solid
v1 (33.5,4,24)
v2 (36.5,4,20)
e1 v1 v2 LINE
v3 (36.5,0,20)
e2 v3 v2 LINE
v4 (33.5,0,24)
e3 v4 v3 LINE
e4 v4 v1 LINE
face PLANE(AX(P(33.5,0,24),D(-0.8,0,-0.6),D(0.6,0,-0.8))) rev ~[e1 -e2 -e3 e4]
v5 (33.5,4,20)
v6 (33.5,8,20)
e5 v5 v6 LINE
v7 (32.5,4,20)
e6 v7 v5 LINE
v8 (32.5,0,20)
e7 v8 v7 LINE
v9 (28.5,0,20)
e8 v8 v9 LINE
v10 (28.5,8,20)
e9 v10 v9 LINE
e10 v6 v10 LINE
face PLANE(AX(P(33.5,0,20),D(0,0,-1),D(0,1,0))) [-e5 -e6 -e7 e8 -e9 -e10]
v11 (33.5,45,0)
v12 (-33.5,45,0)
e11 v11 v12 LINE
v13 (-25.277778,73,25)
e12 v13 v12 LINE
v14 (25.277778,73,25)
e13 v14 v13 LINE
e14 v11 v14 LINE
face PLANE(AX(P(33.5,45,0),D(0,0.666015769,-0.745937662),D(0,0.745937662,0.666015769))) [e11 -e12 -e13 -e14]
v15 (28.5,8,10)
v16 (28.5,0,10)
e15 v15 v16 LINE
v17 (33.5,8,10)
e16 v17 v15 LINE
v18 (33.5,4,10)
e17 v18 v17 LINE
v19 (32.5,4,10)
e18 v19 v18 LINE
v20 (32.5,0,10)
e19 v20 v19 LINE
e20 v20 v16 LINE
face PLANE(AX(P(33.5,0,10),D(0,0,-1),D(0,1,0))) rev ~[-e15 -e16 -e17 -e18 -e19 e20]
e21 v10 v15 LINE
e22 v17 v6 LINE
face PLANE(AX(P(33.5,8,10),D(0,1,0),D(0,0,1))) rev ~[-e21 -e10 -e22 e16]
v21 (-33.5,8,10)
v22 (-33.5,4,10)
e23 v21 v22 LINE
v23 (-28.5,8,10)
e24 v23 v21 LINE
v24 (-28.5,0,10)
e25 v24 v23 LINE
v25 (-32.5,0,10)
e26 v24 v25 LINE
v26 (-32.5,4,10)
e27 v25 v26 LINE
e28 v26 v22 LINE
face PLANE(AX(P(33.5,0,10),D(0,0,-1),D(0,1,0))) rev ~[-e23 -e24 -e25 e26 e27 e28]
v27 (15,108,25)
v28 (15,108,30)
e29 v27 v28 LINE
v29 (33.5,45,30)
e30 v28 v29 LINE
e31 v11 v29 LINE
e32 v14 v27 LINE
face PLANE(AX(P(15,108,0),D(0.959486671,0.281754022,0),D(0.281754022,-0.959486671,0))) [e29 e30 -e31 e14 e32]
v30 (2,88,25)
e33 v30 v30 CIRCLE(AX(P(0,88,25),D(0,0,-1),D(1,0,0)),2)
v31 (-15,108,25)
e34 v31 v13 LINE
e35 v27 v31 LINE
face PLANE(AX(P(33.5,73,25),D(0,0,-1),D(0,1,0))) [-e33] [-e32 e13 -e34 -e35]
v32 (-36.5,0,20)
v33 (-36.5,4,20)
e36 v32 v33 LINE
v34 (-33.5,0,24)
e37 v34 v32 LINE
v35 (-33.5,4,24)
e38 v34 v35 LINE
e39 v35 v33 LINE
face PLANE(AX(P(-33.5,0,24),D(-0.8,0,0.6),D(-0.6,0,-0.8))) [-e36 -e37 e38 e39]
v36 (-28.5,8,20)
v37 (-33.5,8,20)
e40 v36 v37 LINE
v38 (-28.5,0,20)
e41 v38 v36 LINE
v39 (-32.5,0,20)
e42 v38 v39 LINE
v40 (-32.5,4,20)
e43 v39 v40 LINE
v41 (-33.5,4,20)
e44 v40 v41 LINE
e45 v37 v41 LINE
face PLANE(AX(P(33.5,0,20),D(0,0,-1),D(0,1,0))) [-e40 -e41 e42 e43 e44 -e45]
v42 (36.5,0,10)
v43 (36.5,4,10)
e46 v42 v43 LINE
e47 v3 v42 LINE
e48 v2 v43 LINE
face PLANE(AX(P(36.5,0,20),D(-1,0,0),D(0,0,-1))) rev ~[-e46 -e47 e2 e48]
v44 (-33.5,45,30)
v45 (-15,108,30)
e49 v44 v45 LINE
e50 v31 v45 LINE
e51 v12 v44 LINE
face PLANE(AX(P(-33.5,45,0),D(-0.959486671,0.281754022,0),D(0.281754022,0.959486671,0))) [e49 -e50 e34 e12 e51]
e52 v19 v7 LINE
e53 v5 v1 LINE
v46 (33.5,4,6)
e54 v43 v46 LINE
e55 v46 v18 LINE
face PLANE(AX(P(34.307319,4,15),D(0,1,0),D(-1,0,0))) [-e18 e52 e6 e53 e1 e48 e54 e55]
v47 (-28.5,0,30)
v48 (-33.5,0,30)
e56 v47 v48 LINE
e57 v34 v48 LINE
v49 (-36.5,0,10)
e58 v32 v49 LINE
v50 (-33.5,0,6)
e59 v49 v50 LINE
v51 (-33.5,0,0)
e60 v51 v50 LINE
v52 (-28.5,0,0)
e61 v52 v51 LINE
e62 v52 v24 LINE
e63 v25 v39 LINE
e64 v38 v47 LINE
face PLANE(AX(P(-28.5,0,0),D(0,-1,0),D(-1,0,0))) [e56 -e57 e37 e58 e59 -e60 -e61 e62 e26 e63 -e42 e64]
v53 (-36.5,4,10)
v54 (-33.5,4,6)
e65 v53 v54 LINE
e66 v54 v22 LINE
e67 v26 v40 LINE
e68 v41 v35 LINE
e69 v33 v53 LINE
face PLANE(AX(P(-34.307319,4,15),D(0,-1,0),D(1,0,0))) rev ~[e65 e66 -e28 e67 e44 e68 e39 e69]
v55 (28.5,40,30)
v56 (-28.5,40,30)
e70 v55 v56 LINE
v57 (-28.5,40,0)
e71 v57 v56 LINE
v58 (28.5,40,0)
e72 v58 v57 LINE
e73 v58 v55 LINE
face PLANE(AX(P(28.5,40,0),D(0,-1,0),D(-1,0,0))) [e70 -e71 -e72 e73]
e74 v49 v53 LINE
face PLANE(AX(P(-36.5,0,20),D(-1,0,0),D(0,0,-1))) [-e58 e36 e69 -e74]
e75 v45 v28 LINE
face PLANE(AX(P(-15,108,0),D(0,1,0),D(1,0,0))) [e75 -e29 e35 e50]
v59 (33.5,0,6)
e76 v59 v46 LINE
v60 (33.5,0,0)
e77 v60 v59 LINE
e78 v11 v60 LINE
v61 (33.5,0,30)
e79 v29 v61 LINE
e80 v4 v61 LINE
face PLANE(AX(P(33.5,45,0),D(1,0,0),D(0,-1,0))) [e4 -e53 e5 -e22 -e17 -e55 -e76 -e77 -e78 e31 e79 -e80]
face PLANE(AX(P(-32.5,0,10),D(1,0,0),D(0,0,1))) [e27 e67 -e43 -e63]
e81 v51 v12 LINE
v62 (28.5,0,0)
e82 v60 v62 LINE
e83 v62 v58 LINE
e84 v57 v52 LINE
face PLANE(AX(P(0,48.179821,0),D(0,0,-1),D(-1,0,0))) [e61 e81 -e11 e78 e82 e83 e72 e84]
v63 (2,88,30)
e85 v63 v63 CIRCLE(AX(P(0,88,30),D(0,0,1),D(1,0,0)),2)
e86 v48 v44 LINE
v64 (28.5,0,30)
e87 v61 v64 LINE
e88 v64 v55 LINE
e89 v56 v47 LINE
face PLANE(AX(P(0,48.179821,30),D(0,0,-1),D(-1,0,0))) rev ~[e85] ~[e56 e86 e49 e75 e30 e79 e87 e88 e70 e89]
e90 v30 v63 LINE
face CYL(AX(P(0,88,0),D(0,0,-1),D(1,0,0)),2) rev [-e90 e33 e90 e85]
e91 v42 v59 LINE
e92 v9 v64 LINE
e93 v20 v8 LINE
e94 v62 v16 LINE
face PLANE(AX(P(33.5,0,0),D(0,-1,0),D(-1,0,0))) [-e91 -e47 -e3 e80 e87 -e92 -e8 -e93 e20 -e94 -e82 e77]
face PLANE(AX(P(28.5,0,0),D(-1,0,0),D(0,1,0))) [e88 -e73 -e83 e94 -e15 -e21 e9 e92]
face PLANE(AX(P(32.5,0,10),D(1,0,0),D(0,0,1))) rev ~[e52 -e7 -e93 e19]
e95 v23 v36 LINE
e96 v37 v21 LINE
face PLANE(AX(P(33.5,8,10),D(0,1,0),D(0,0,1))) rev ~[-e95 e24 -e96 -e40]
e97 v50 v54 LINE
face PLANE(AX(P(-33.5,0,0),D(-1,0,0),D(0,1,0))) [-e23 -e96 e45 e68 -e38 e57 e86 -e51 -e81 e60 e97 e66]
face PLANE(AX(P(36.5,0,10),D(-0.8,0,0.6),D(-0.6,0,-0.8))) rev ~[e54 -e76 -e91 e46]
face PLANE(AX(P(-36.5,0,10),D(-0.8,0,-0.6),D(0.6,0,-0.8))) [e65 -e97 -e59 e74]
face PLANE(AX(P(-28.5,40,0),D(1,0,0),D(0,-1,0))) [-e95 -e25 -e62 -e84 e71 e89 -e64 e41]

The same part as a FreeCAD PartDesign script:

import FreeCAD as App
import Part
import Sketcher
from FreeCAD import Vector

doc = App.newDocument("Part")
body = doc.addObject("PartDesign::Body", "Body")

sketch1 = doc.addObject("Sketcher::SketchObject", "Sketch")
body.addObject(sketch1)
sketch1.AttachmentSupport = (doc.XY_Plane, [""])
sketch1.MapMode = "FlatFace"
sketch1.addGeometry([
    Part.LineSegment(Vector(-33.5, 45, 0), Vector(-33.5, 0, 0)),
    Part.LineSegment(Vector(-33.5, 0, 0), Vector(-28.5, 0, 0)),
    Part.LineSegment(Vector(-28.5, 0, 0), Vector(-28.5, 40, 0)),
    Part.LineSegment(Vector(-28.5, 40, 0), Vector(28.5, 40, 0)),
    Part.LineSegment(Vector(28.5, 40, 0), Vector(28.5, 0, 0)),
    Part.LineSegment(Vector(28.5, 0, 0), Vector(33.5, 0, 0)),
    Part.LineSegment(Vector(33.5, 0, 0), Vector(33.5, 45, 0)),
    Part.LineSegment(Vector(33.5, 45, 0), Vector(15, 108, 0)),
    Part.LineSegment(Vector(15, 108, 0), Vector(-15, 108, 0)),
    Part.LineSegment(Vector(-15, 108, 0), Vector(-33.5, 45, 0)),
    Part.Circle(Vector(0, 88, 0), Vector(0, 0, 1), 2),
], False)
sketch1.addConstraint([
    Sketcher.Constraint("Coincident", 0, 2, 1, 1),
    Sketcher.Constraint("Coincident", 1, 2, 2, 1),
    Sketcher.Constraint("Coincident", 2, 2, 3, 1),
    Sketcher.Constraint("Coincident", 3, 2, 4, 1),
    Sketcher.Constraint("Coincident", 4, 2, 5, 1),
    Sketcher.Constraint("Coincident", 5, 2, 6, 1),
    Sketcher.Constraint("Coincident", 6, 2, 7, 1),
    Sketcher.Constraint("Coincident", 7, 2, 8, 1),
    Sketcher.Constraint("Coincident", 8, 2, 9, 1),
    Sketcher.Constraint("Coincident", 9, 2, 0, 1),
    Sketcher.Constraint("Vertical", 0),
    Sketcher.Constraint("Horizontal", 1),
    Sketcher.Constraint("Vertical", 2),
    Sketcher.Constraint("Horizontal", 3),
    Sketcher.Constraint("Vertical", 4),
    Sketcher.Constraint("Horizontal", 5),
    Sketcher.Constraint("Vertical", 6),
    Sketcher.Constraint("Horizontal", 8),
    Sketcher.Constraint("Symmetric", 1, 2, 4, 2, -1, 1),
    Sketcher.Constraint("Symmetric", 0, 2, 5, 2, -2),
    Sketcher.Constraint("PointOnObject", 10, 3, -2),
    Sketcher.Constraint("Horizontal", 6, 2, 9, 2),
    Sketcher.Constraint("Equal", 7, 9),
    Sketcher.Constraint("Diameter", 10, 4.0),
    Sketcher.Constraint("DistanceX", 1, 1, 1, 2, 5.0),
    Sketcher.Constraint("DistanceX", 3, 1, 3, 2, 57.0),
    Sketcher.Constraint("DistanceX", 8, 2, 8, 1, 30.0),
    Sketcher.Constraint("DistanceY", 0, 2, 0, 1, 45.0),
    Sketcher.Constraint("DistanceY", 2, 1, 2, 2, 40.0),
    Sketcher.Constraint("DistanceY", -1, 1, 10, 3, 88.0),
    Sketcher.Constraint("DistanceY", -1, 1, 7, 2, 108.0),
])
pad1 = doc.addObject("PartDesign::Pad", "Pad")
body.addObject(pad1)
pad1.Profile = sketch1
pad1.Length = 30

sketch2 = doc.addObject("Sketcher::SketchObject", "Sketch001")
body.addObject(sketch2)
sketch2.AttachmentSupport = (doc.YZ_Plane, [""])
sketch2.MapMode = "FlatFace"
sketch2.AttachmentOffset = App.Placement(Vector(0, 0, 33.5), App.Rotation())
sketch2.addGeometry([
    Part.LineSegment(Vector(73, 25, 0), Vector(45, 0, 0)),
    Part.LineSegment(Vector(45, 0, 0), Vector(108, 0, 0)),
    Part.LineSegment(Vector(108, 0, 0), Vector(108, 25, 0)),
    Part.LineSegment(Vector(108, 25, 0), Vector(73, 25, 0)),
    Part.LineSegment(Vector(0, 20, 0), Vector(0, 10, 0)),
    Part.LineSegment(Vector(0, 10, 0), Vector(8, 10, 0)),
    Part.LineSegment(Vector(8, 10, 0), Vector(8, 20, 0)),
    Part.LineSegment(Vector(8, 20, 0), Vector(0, 20, 0)),
], False)
sketch2.addConstraint([
    Sketcher.Constraint("Coincident", 0, 2, 1, 1),
    Sketcher.Constraint("Coincident", 1, 2, 2, 1),
    Sketcher.Constraint("Coincident", 2, 2, 3, 1),
    Sketcher.Constraint("Coincident", 3, 2, 0, 1),
    Sketcher.Constraint("Coincident", 4, 2, 5, 1),
    Sketcher.Constraint("Coincident", 5, 2, 6, 1),
    Sketcher.Constraint("Coincident", 6, 2, 7, 1),
    Sketcher.Constraint("Coincident", 7, 2, 4, 1),
    Sketcher.Constraint("Horizontal", 1),
    Sketcher.Constraint("Vertical", 2),
    Sketcher.Constraint("Horizontal", 3),
    Sketcher.Constraint("Vertical", 4),
    Sketcher.Constraint("Horizontal", 5),
    Sketcher.Constraint("Vertical", 6),
    Sketcher.Constraint("Horizontal", 7),
    Sketcher.Constraint("PointOnObject", 0, 2, -1),
    Sketcher.Constraint("PointOnObject", 4, 2, -2),
    Sketcher.Constraint("DistanceX", 1, 1, 1, 2, 63.0),
    Sketcher.Constraint("DistanceX", 3, 2, 3, 1, 35.0),
    Sketcher.Constraint("DistanceX", 5, 1, 5, 2, 8.0),
    Sketcher.Constraint("DistanceY", 2, 1, 2, 2, 25.0),
    Sketcher.Constraint("DistanceY", 4, 2, 4, 1, 10.0),
    Sketcher.Constraint("DistanceX", -1, 1, 0, 2, 45.0),
    Sketcher.Constraint("DistanceY", -1, 1, 4, 2, 10.0),
])
pocket1 = doc.addObject("PartDesign::Pocket", "Pocket")
body.addObject(pocket1)
pocket1.Profile = sketch2
pocket1.Type = "ThroughAll"

sketch3 = doc.addObject("Sketcher::SketchObject", "Sketch002")
body.addObject(sketch3)
sketch3.AttachmentSupport = (doc.XZ_Plane, [""])
sketch3.MapMode = "FlatFace"
sketch3.addGeometry([
    Part.LineSegment(Vector(33.5, 24, 0), Vector(32.5, 20, 0)),
    Part.LineSegment(Vector(32.5, 20, 0), Vector(32.5, 10, 0)),
    Part.LineSegment(Vector(32.5, 10, 0), Vector(33.5, 6, 0)),
    Part.LineSegment(Vector(33.5, 6, 0), Vector(36.5, 10, 0)),
    Part.LineSegment(Vector(36.5, 10, 0), Vector(36.5, 20, 0)),
    Part.LineSegment(Vector(36.5, 20, 0), Vector(33.5, 24, 0)),
    Part.LineSegment(Vector(-32.5, 20, 0), Vector(-33.5, 24, 0)),
    Part.LineSegment(Vector(-33.5, 24, 0), Vector(-36.5, 20, 0)),
    Part.LineSegment(Vector(-36.5, 20, 0), Vector(-36.5, 10, 0)),
    Part.LineSegment(Vector(-36.5, 10, 0), Vector(-33.5, 6, 0)),
    Part.LineSegment(Vector(-33.5, 6, 0), Vector(-32.5, 10, 0)),
    Part.LineSegment(Vector(-32.5, 10, 0), Vector(-32.5, 20, 0)),
], False)
sketch3.addConstraint([
    Sketcher.Constraint("Coincident", 0, 2, 1, 1),
    Sketcher.Constraint("Coincident", 1, 2, 2, 1),
    Sketcher.Constraint("Coincident", 2, 2, 3, 1),
    Sketcher.Constraint("Coincident", 3, 2, 4, 1),
    Sketcher.Constraint("Coincident", 4, 2, 5, 1),
    Sketcher.Constraint("Coincident", 5, 2, 0, 1),
    Sketcher.Constraint("Coincident", 6, 2, 7, 1),
    Sketcher.Constraint("Coincident", 7, 2, 8, 1),
    Sketcher.Constraint("Coincident", 8, 2, 9, 1),
    Sketcher.Constraint("Coincident", 9, 2, 10, 1),
    Sketcher.Constraint("Coincident", 10, 2, 11, 1),
    Sketcher.Constraint("Coincident", 11, 2, 6, 1),
    Sketcher.Constraint("Vertical", 1),
    Sketcher.Constraint("Vertical", 4),
    Sketcher.Constraint("Vertical", 8),
    Sketcher.Constraint("Vertical", 11),
    Sketcher.Constraint("Symmetric", 5, 2, 6, 2, -2),
    Sketcher.Constraint("Symmetric", 4, 2, 7, 2, -2),
    Sketcher.Constraint("Symmetric", 2, 2, 9, 2, -2),
    Sketcher.Constraint("Symmetric", 1, 2, 10, 2, -2),
    Sketcher.Constraint("Parallel", 2, 6),
    Sketcher.Constraint("Parallel", 3, 7),
    Sketcher.Constraint("Parallel", 5, 9),
    Sketcher.Constraint("Parallel", 0, 10),
    Sketcher.Constraint("Horizontal", 1, 2, 3, 2),
    Sketcher.Constraint("Horizontal", 0, 2, 4, 2),
    Sketcher.Constraint("DistanceY", 1, 2, 1, 1, 10.0),
    Sketcher.Constraint("Distance", 3, 5.0),
    Sketcher.Constraint("DistanceY", -1, 1, 0, 2, 20.0),
    Sketcher.Constraint("DistanceY", -1, 1, 2, 2, 6.0),
    Sketcher.Constraint("DistanceX", 1, 2, 2, 2, 1.0),
    Sketcher.Constraint("DistanceX", 6, 2, 0, 2, 66.0),
])
pad2 = doc.addObject("PartDesign::Pad", "Pad001")
body.addObject(pad2)
pad2.Profile = sketch3
pad2.Length = 4
pad2.Reversed = True

doc.recompute()
